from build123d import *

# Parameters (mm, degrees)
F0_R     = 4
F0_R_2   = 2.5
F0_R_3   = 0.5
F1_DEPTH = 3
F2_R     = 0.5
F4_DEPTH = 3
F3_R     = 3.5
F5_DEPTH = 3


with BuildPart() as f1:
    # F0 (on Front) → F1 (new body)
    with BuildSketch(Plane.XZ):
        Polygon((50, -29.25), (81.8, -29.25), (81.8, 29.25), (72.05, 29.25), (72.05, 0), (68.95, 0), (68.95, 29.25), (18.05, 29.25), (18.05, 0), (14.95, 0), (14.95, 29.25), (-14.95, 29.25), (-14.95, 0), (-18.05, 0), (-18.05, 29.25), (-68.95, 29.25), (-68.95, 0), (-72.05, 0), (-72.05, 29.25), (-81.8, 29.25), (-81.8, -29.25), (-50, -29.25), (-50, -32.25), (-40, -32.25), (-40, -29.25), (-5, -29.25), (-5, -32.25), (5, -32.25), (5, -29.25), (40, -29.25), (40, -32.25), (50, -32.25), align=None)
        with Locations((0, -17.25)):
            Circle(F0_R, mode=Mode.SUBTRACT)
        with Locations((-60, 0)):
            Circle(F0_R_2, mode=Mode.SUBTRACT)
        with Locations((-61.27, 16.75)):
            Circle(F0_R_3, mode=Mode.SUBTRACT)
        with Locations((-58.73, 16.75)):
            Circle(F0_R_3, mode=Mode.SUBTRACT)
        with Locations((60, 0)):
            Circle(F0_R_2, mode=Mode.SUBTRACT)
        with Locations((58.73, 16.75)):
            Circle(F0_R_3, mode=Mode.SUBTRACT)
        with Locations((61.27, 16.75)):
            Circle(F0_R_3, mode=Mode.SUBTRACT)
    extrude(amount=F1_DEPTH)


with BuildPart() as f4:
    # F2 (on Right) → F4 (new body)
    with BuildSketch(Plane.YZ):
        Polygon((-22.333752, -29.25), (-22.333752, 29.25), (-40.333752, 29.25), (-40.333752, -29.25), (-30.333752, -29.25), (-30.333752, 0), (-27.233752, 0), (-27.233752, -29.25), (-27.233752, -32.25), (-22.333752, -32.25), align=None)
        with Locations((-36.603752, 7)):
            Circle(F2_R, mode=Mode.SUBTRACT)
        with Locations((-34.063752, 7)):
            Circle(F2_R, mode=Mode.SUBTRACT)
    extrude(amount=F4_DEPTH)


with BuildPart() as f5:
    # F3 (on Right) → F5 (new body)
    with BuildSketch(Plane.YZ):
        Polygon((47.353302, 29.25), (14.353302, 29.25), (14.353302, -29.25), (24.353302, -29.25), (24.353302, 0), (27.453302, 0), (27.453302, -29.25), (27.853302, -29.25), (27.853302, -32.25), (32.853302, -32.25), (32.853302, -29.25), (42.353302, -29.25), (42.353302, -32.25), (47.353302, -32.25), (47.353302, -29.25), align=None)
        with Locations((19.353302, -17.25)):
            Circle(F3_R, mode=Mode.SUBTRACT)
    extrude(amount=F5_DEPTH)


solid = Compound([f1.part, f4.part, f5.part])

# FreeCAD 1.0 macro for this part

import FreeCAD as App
import Part
import Sketcher
from FreeCAD import Vector
Q = App.Units.Quantity


def add_polygon(sketch, points):
    """Adds a closed chain of lines whose ends are joined by coincident constraints."""
    first, n = sketch.GeometryCount, len(points)
    for a, b in zip(points, points[1:] + points[:1]):
        sketch.addGeometry(Part.LineSegment(App.Vector(*a, 0), App.Vector(*b, 0)), False)
    for i in range(n):
        sketch.addConstraint(Sketcher.Constraint("Coincident", first + i, 2, first + (i + 1) % n, 1))

doc = App.newDocument("Part")
body = doc.addObject("PartDesign::Body", "Body")

# Sketch on XZ plane
sketch1 = body.newObject("Sketcher::SketchObject", "Sketch")
sketch1.AttachmentSupport = (doc.getObject("XZ_Plane"), [""])
sketch1.MapMode = "FlatFace"
add_polygon(sketch1, [(50, -29.2), (81.8, -29.2), (81.8, 29.2), (72, 29.2), (72, 0), (69, 0), (69, 29.2), (18.1, 29.2), (18.1, 0), (14.9, 0), (14.9, 29.2), (-14.9, 29.2), (-14.9, 0), (-18.1, 0), (-18.1, 29.2), (-69, 29.2), (-69, 0), (-72, 0), (-72, 29.2), (-81.8, 29.2), (-81.8, -29.2), (-50, -29.2), (-50, -32.2), (-40, -32.2), (-40, -29.2), (-5, -29.2), (-5, -32.2), (5, -32.2), (5, -29.2), (40, -29.2), (40, -32.2), (50, -32.2)])  # lines 0-31
sketch1.addGeometry(Part.Circle(Vector(0, -17.2, 0), Vector(0, 0, 1), 4), False)  # 32
sketch1.addGeometry(Part.Circle(Vector(-60, 0, 0), Vector(0, 0, 1), 2.5), False)  # 33
sketch1.addGeometry(Part.Circle(Vector(-61.3, 16.8, 0), Vector(0, 0, 1), 0.5), False)  # 34
sketch1.addGeometry(Part.Circle(Vector(-58.7, 16.8, 0), Vector(0, 0, 1), 0.5), False)  # 35
sketch1.addGeometry(Part.Circle(Vector(60, 0, 0), Vector(0, 0, 1), 2.5), False)  # 36
sketch1.addGeometry(Part.Circle(Vector(58.7, 16.8, 0), Vector(0, 0, 1), 0.5), False)  # 37
sketch1.addGeometry(Part.Circle(Vector(61.3, 16.8, 0), Vector(0, 0, 1), 0.5), False)  # 38
sketch1.addConstraint(Sketcher.Constraint("Horizontal", 0))
sketch1.addConstraint(Sketcher.Constraint("Vertical", 1))
sketch1.addConstraint(Sketcher.Constraint("Horizontal", 2))
sketch1.addConstraint(Sketcher.Constraint("Vertical", 3))
sketch1.addConstraint(Sketcher.Constraint("Horizontal", 4))
sketch1.addConstraint(Sketcher.Constraint("Vertical", 5))
sketch1.addConstraint(Sketcher.Constraint("Horizontal", 6))
sketch1.addConstraint(Sketcher.Constraint("Vertical", 7))
sketch1.addConstraint(Sketcher.Constraint("Horizontal", 8))
sketch1.addConstraint(Sketcher.Constraint("Vertical", 9))
sketch1.addConstraint(Sketcher.Constraint("Horizontal", 10))
sketch1.addConstraint(Sketcher.Constraint("Vertical", 11))
sketch1.addConstraint(Sketcher.Constraint("Horizontal", 12))
sketch1.addConstraint(Sketcher.Constraint("Vertical", 13))
sketch1.addConstraint(Sketcher.Constraint("Horizontal", 14))
sketch1.addConstraint(Sketcher.Constraint("Vertical", 15))
sketch1.addConstraint(Sketcher.Constraint("Horizontal", 16))
sketch1.addConstraint(Sketcher.Constraint("Vertical", 17))
sketch1.addConstraint(Sketcher.Constraint("Horizontal", 18))
sketch1.addConstraint(Sketcher.Constraint("Vertical", 19))
sketch1.addConstraint(Sketcher.Constraint("Horizontal", 20))
sketch1.addConstraint(Sketcher.Constraint("Vertical", 21))
sketch1.addConstraint(Sketcher.Constraint("Horizontal", 22))
sketch1.addConstraint(Sketcher.Constraint("Vertical", 23))
sketch1.addConstraint(Sketcher.Constraint("Horizontal", 24))
sketch1.addConstraint(Sketcher.Constraint("Vertical", 25))
sketch1.addConstraint(Sketcher.Constraint("Horizontal", 26))
sketch1.addConstraint(Sketcher.Constraint("Vertical", 27))
sketch1.addConstraint(Sketcher.Constraint("Horizontal", 28))
sketch1.addConstraint(Sketcher.Constraint("Vertical", 29))
sketch1.addConstraint(Sketcher.Constraint("Horizontal", 30))
sketch1.addConstraint(Sketcher.Constraint("Vertical", 31))
sketch1.addConstraint(Sketcher.Constraint("Equal", 34, 35))
sketch1.addConstraint(Sketcher.Constraint("Equal", 33, 36))
sketch1.addConstraint(Sketcher.Constraint("Equal", 35, 37))
sketch1.addConstraint(Sketcher.Constraint("Equal", 37, 38))
sketch1.addConstraint(Sketcher.Constraint("Symmetric", 33, 3, 36, 3, -1, 1))
sketch1.addConstraint(Sketcher.Constraint("Symmetric", 8, 2, 11, 2, -1, 1))
sketch1.addConstraint(Sketcher.Constraint("Symmetric", 4, 2, 15, 2, -1, 1))
sketch1.addConstraint(Sketcher.Constraint("Symmetric", 0, 2, 18, 2, -1, 1))
sketch1.addConstraint(Sketcher.Constraint("Symmetric", 35, 3, 37, 3, -2))
sketch1.addConstraint(Sketcher.Constraint("Symmetric", 34, 3, 38, 3, -2))
sketch1.addConstraint(Sketcher.Constraint("Symmetric", 7, 2, 12, 2, -2))
sketch1.addConstraint(Sketcher.Constraint("Symmetric", 3, 2, 16, 2, -2))
sketch1.addConstraint(Sketcher.Constraint("Symmetric", 24, 2, 27, 2, -2))
sketch1.addConstraint(Sketcher.Constraint("Symmetric", 22, 2, 29, 2, -2))
sketch1.addConstraint(Sketcher.Constraint("Symmetric", 20, 2, 31, 2, -2))
sketch1.addConstraint(Sketcher.Constraint("PointOnObject", 32, 3, -2))
sketch1.addConstraint(Sketcher.Constraint("PointOnObject", 33, 3, -1))
sketch1.addConstraint(Sketcher.Constraint("Horizontal", 34, 3, 35, 3))
sketch1.addConstraint(Sketcher.Constraint("Horizontal", 2, 2, 5, 2))
sketch1.addConstraint(Sketcher.Constraint("Horizontal", 6, 2, 9, 2))
sketch1.addConstraint(Sketcher.Constraint("Horizontal", 10, 2, 13, 2))
sketch1.addConstraint(Sketcher.Constraint("Horizontal", 14, 2, 17, 2))
sketch1.addConstraint(Sketcher.Constraint("Horizontal", 20, 2, 23, 2))
sketch1.addConstraint(Sketcher.Constraint("Horizontal", 22, 2, 25, 2))
sketch1.addConstraint(Sketcher.Constraint("Equal", 4, 8))
sketch1.addConstraint(Sketcher.Constraint("Equal", 22, 26))
sketch1.addConstraint(Sketcher.Constraint("Diameter", 32, Q("8 mm")))
sketch1.addConstraint(Sketcher.Constraint("Diameter", 33, Q("5 mm")))
sketch1.addConstraint(Sketcher.Constraint("Diameter", 34, Q("1 mm")))
sketch1.addConstraint(Sketcher.Constraint("DistanceX", 22, 1, 22, 2, Q("10 mm")))
sketch1.addConstraint(Sketcher.Constraint("DistanceX", 24, 1, 24, 2, Q("35 mm")))
sketch1.addConstraint(Sketcher.Constraint("DistanceY", 21, 2, 21, 1, Q("3 mm")))
sketch1.addConstraint(Sketcher.Constraint("DistanceX", 0, 1, 0, 2, Q("31.8 mm")))
sketch1.addConstraint(Sketcher.Constraint("DistanceX", 4, 2, 4, 1, Q("3.1 mm")))
sketch1.addConstraint(Sketcher.Constraint("DistanceX", 6, 2, 6, 1, Q("50.9 mm")))
sketch1.addConstraint(Sketcher.Constraint("DistanceX", 10, 2, 10, 1, Q("29.9 mm")))
sketch1.addConstraint(Sketcher.Constraint("DistanceY", 1, 1, 1, 2, Q("58.5 mm")))
sketch1.addConstraint(Sketcher.Constraint("DistanceX", 33, 3, -1, 1, Q("60 mm")))
sketch1.addConstraint(Sketcher.Constraint("DistanceY", 32, 3, 34, 3, Q("34 mm")))
sketch1.addConstraint(Sketcher.Constraint("DistanceX", 34, 3, 37, 3, Q("120 mm")))
sketch1.addConstraint(Sketcher.Constraint("DistanceY", 0, 2, 38, 3, Q("46 mm")))
sketch1.addConstraint(Sketcher.Constraint("DistanceX", 34, 3, -1, 1, Q("61.27 mm")))
pad1 = body.newObject("PartDesign::Pad", "Pad")
pad1.Profile = sketch1
pad1.Length = 3
body2 = doc.addObject("PartDesign::Body", "Body001")

# Sketch on YZ plane
sketch2 = body2.newObject("Sketcher::SketchObject", "Sketch001")
sketch2.AttachmentSupport = (doc.getObject("YZ_Plane001"), [""])
sketch2.MapMode = "FlatFace"
add_polygon(sketch2, [(-22.3, 29.2), (-40.3, 29.2), (-40.3, -29.2), (-30.3, -29.2), (-30.3, 0), (-27.2, 0), (-27.2, -32.2), (-22.3, -32.2)])  # lines 0-7
sketch2.addGeometry(Part.Circle(Vector(-36.6, 7, 0), Vector(0, 0, 1), 0.5), False)  # 8
sketch2.addGeometry(Part.Circle(Vector(-34.1, 7, 0), Vector(0, 0, 1), 0.5), False)  # 9
sketch2.addConstraint(Sketcher.Constraint("Horizontal", 0))
sketch2.addConstraint(Sketcher.Constraint("Vertical", 1))
sketch2.addConstraint(Sketcher.Constraint("Horizontal", 2))
sketch2.addConstraint(Sketcher.Constraint("Vertical", 3))
sketch2.addConstraint(Sketcher.Constraint("Horizontal", 4))
sketch2.addConstraint(Sketcher.Constraint("Vertical", 5))
sketch2.addConstraint(Sketcher.Constraint("Horizontal", 6))
sketch2.addConstraint(Sketcher.Constraint("Vertical", 7))
sketch2.addConstraint(Sketcher.Constraint("Equal", 8, 9))
sketch2.addConstraint(Sketcher.Constraint("PointOnObject", 3, 2, -1))
sketch2.addConstraint(Sketcher.Constraint("Horizontal", 8, 3, 9, 3))
sketch2.addConstraint(Sketcher.Constraint("Diameter", 8, Q("1 mm")))
sketch2.addConstraint(Sketcher.Constraint("DistanceX", 0, 2, 0, 1, Q("18 mm")))
sketch2.addConstraint(Sketcher.Constraint("DistanceX", 2, 1, 2, 2, Q("10 mm")))
sketch2.addConstraint(Sketcher.Constraint("DistanceX", 4, 1, 4, 2, Q("3.1 mm")))
sketch2.addConstraint(Sketcher.Constraint("DistanceY", 1, 2, 1, 1, Q("58.5 mm")))
sketch2.addConstraint(Sketcher.Constraint("DistanceY", 7, 1, 7, 2, Q("61.5 mm")))
sketch2.addConstraint(Sketcher.Constraint("DistanceY", -1, 1, 8, 3, Q("7 mm")))
sketch2.addConstraint(Sketcher.Constraint("DistanceY", 3, 1, 3, 2, Q("29.25 mm")))
sketch2.addConstraint(Sketcher.Constraint("DistanceX", 8, 3, 9, 3, Q("2.54 mm")))
sketch2.addConstraint(Sketcher.Constraint("DistanceX", 0, 2, 8, 3, Q("3.73 mm")))
sketch2.addConstraint(Sketcher.Constraint("DistanceX", 0, 2, -1, 1, Q("40.333752 mm")))
pad2 = body2.newObject("PartDesign::Pad", "Pad001")
pad2.Profile = sketch2
pad2.Length = 3
body3 = doc.addObject("PartDesign::Body", "Body002")

# Sketch on YZ plane
sketch3 = body3.newObject("Sketcher::SketchObject", "Sketch002")
sketch3.AttachmentSupport = (doc.getObject("YZ_Plane002"), [""])
sketch3.MapMode = "FlatFace"
add_polygon(sketch3, [(47.35, 29.25), (14.35, 29.25), (14.35, -29.25), (24.35, -29.25), (24.35, 0), (27.45, 0), (27.45, -29.25), (27.85, -29.25), (27.85, -32.25), (32.85, -32.25), (32.85, -29.25), (42.35, -29.25), (42.35, -32.25), (47.35, -32.25)])  # lines 0-13
sketch3.addGeometry(Part.Circle(Vector(19.35, -17.25, 0), Vector(0, 0, 1), 3.5), False)  # 14
sketch3.addConstraint(Sketcher.Constraint("Horizontal", 0))
sketch3.addConstraint(Sketcher.Constraint("Vertical", 1))
sketch3.addConstraint(Sketcher.Constraint("Horizontal", 2))
sketch3.addConstraint(Sketcher.Constraint("Vertical", 3))
sketch3.addConstraint(Sketcher.Constraint("Horizontal", 4))
sketch3.addConstraint(Sketcher.Constraint("Vertical", 5))
sketch3.addConstraint(Sketcher.Constraint("Horizontal", 6))
sketch3.addConstraint(Sketcher.Constraint("Vertical", 7))
sketch3.addConstraint(Sketcher.Constraint("Horizontal", 8))
sketch3.addConstraint(Sketcher.Constraint("Vertical", 9))
sketch3.addConstraint(Sketcher.Constraint("Horizontal", 10))
sketch3.addConstraint(Sketcher.Constraint("Vertical", 11))
sketch3.addConstraint(Sketcher.Constraint("Horizontal", 12))
sketch3.addConstraint(Sketcher.Constraint("Vertical", 13))
sketch3.addConstraint(Sketcher.Constraint("PointOnObject", 3, 2, -1))
sketch3.addConstraint(Sketcher.Constraint("Horizontal", 2, 2, 5, 2))
sketch3.addConstraint(Sketcher.Constraint("Horizontal", 6, 2, 9, 2))
sketch3.addConstraint(Sketcher.Constraint("Horizontal", 8, 2, 11, 2))
sketch3.addConstraint(Sketcher.Constraint("Equal", 8, 12))
sketch3.addConstraint(Sketcher.Constraint("Diameter", 14, Q("7 mm")))
sketch3.addConstraint(Sketcher.Constraint("DistanceX", 0, 2, 0, 1, Q("33 mm")))
sketch3.addConstraint(Sketcher.Constraint("DistanceX", 2, 1, 2, 2, Q("10 mm")))
sketch3.addConstraint(Sketcher.Constraint("DistanceX", 8, 1, 8, 2, Q("5 mm")))
sketch3.addConstraint(Sketcher.Constraint("DistanceY", 7, 2, 7, 1, Q("3 mm")))
sketch3.addConstraint(Sketcher.Constraint("DistanceX", 4, 1, 4, 2, Q("3.1 mm")))
sketch3.addConstraint(Sketcher.Constraint("DistanceX", 6, 1, 6, 2, Q("0.4 mm")))
sketch3.addConstraint(Sketcher.Constraint("DistanceY", 1, 2, 1, 1, Q("58.5 mm")))
sketch3.addConstraint(Sketcher.Constraint("DistanceX", 0, 2, 14, 3, Q("5 mm")))
sketch3.addConstraint(Sketcher.Constraint("DistanceY", 1, 2, 14, 3, Q("12 mm")))
sketch3.addConstraint(Sketcher.Constraint("DistanceY", 3, 1, 3, 2, Q("29.25 mm")))
sketch3.addConstraint(Sketcher.Constraint("DistanceX", -1, 1, 14, 3, Q("19.353302 mm")))
pad3 = body3.newObject("PartDesign::Pad", "Pad002")
pad3.Profile = sketch3
pad3.Length = 3

doc.recompute()
